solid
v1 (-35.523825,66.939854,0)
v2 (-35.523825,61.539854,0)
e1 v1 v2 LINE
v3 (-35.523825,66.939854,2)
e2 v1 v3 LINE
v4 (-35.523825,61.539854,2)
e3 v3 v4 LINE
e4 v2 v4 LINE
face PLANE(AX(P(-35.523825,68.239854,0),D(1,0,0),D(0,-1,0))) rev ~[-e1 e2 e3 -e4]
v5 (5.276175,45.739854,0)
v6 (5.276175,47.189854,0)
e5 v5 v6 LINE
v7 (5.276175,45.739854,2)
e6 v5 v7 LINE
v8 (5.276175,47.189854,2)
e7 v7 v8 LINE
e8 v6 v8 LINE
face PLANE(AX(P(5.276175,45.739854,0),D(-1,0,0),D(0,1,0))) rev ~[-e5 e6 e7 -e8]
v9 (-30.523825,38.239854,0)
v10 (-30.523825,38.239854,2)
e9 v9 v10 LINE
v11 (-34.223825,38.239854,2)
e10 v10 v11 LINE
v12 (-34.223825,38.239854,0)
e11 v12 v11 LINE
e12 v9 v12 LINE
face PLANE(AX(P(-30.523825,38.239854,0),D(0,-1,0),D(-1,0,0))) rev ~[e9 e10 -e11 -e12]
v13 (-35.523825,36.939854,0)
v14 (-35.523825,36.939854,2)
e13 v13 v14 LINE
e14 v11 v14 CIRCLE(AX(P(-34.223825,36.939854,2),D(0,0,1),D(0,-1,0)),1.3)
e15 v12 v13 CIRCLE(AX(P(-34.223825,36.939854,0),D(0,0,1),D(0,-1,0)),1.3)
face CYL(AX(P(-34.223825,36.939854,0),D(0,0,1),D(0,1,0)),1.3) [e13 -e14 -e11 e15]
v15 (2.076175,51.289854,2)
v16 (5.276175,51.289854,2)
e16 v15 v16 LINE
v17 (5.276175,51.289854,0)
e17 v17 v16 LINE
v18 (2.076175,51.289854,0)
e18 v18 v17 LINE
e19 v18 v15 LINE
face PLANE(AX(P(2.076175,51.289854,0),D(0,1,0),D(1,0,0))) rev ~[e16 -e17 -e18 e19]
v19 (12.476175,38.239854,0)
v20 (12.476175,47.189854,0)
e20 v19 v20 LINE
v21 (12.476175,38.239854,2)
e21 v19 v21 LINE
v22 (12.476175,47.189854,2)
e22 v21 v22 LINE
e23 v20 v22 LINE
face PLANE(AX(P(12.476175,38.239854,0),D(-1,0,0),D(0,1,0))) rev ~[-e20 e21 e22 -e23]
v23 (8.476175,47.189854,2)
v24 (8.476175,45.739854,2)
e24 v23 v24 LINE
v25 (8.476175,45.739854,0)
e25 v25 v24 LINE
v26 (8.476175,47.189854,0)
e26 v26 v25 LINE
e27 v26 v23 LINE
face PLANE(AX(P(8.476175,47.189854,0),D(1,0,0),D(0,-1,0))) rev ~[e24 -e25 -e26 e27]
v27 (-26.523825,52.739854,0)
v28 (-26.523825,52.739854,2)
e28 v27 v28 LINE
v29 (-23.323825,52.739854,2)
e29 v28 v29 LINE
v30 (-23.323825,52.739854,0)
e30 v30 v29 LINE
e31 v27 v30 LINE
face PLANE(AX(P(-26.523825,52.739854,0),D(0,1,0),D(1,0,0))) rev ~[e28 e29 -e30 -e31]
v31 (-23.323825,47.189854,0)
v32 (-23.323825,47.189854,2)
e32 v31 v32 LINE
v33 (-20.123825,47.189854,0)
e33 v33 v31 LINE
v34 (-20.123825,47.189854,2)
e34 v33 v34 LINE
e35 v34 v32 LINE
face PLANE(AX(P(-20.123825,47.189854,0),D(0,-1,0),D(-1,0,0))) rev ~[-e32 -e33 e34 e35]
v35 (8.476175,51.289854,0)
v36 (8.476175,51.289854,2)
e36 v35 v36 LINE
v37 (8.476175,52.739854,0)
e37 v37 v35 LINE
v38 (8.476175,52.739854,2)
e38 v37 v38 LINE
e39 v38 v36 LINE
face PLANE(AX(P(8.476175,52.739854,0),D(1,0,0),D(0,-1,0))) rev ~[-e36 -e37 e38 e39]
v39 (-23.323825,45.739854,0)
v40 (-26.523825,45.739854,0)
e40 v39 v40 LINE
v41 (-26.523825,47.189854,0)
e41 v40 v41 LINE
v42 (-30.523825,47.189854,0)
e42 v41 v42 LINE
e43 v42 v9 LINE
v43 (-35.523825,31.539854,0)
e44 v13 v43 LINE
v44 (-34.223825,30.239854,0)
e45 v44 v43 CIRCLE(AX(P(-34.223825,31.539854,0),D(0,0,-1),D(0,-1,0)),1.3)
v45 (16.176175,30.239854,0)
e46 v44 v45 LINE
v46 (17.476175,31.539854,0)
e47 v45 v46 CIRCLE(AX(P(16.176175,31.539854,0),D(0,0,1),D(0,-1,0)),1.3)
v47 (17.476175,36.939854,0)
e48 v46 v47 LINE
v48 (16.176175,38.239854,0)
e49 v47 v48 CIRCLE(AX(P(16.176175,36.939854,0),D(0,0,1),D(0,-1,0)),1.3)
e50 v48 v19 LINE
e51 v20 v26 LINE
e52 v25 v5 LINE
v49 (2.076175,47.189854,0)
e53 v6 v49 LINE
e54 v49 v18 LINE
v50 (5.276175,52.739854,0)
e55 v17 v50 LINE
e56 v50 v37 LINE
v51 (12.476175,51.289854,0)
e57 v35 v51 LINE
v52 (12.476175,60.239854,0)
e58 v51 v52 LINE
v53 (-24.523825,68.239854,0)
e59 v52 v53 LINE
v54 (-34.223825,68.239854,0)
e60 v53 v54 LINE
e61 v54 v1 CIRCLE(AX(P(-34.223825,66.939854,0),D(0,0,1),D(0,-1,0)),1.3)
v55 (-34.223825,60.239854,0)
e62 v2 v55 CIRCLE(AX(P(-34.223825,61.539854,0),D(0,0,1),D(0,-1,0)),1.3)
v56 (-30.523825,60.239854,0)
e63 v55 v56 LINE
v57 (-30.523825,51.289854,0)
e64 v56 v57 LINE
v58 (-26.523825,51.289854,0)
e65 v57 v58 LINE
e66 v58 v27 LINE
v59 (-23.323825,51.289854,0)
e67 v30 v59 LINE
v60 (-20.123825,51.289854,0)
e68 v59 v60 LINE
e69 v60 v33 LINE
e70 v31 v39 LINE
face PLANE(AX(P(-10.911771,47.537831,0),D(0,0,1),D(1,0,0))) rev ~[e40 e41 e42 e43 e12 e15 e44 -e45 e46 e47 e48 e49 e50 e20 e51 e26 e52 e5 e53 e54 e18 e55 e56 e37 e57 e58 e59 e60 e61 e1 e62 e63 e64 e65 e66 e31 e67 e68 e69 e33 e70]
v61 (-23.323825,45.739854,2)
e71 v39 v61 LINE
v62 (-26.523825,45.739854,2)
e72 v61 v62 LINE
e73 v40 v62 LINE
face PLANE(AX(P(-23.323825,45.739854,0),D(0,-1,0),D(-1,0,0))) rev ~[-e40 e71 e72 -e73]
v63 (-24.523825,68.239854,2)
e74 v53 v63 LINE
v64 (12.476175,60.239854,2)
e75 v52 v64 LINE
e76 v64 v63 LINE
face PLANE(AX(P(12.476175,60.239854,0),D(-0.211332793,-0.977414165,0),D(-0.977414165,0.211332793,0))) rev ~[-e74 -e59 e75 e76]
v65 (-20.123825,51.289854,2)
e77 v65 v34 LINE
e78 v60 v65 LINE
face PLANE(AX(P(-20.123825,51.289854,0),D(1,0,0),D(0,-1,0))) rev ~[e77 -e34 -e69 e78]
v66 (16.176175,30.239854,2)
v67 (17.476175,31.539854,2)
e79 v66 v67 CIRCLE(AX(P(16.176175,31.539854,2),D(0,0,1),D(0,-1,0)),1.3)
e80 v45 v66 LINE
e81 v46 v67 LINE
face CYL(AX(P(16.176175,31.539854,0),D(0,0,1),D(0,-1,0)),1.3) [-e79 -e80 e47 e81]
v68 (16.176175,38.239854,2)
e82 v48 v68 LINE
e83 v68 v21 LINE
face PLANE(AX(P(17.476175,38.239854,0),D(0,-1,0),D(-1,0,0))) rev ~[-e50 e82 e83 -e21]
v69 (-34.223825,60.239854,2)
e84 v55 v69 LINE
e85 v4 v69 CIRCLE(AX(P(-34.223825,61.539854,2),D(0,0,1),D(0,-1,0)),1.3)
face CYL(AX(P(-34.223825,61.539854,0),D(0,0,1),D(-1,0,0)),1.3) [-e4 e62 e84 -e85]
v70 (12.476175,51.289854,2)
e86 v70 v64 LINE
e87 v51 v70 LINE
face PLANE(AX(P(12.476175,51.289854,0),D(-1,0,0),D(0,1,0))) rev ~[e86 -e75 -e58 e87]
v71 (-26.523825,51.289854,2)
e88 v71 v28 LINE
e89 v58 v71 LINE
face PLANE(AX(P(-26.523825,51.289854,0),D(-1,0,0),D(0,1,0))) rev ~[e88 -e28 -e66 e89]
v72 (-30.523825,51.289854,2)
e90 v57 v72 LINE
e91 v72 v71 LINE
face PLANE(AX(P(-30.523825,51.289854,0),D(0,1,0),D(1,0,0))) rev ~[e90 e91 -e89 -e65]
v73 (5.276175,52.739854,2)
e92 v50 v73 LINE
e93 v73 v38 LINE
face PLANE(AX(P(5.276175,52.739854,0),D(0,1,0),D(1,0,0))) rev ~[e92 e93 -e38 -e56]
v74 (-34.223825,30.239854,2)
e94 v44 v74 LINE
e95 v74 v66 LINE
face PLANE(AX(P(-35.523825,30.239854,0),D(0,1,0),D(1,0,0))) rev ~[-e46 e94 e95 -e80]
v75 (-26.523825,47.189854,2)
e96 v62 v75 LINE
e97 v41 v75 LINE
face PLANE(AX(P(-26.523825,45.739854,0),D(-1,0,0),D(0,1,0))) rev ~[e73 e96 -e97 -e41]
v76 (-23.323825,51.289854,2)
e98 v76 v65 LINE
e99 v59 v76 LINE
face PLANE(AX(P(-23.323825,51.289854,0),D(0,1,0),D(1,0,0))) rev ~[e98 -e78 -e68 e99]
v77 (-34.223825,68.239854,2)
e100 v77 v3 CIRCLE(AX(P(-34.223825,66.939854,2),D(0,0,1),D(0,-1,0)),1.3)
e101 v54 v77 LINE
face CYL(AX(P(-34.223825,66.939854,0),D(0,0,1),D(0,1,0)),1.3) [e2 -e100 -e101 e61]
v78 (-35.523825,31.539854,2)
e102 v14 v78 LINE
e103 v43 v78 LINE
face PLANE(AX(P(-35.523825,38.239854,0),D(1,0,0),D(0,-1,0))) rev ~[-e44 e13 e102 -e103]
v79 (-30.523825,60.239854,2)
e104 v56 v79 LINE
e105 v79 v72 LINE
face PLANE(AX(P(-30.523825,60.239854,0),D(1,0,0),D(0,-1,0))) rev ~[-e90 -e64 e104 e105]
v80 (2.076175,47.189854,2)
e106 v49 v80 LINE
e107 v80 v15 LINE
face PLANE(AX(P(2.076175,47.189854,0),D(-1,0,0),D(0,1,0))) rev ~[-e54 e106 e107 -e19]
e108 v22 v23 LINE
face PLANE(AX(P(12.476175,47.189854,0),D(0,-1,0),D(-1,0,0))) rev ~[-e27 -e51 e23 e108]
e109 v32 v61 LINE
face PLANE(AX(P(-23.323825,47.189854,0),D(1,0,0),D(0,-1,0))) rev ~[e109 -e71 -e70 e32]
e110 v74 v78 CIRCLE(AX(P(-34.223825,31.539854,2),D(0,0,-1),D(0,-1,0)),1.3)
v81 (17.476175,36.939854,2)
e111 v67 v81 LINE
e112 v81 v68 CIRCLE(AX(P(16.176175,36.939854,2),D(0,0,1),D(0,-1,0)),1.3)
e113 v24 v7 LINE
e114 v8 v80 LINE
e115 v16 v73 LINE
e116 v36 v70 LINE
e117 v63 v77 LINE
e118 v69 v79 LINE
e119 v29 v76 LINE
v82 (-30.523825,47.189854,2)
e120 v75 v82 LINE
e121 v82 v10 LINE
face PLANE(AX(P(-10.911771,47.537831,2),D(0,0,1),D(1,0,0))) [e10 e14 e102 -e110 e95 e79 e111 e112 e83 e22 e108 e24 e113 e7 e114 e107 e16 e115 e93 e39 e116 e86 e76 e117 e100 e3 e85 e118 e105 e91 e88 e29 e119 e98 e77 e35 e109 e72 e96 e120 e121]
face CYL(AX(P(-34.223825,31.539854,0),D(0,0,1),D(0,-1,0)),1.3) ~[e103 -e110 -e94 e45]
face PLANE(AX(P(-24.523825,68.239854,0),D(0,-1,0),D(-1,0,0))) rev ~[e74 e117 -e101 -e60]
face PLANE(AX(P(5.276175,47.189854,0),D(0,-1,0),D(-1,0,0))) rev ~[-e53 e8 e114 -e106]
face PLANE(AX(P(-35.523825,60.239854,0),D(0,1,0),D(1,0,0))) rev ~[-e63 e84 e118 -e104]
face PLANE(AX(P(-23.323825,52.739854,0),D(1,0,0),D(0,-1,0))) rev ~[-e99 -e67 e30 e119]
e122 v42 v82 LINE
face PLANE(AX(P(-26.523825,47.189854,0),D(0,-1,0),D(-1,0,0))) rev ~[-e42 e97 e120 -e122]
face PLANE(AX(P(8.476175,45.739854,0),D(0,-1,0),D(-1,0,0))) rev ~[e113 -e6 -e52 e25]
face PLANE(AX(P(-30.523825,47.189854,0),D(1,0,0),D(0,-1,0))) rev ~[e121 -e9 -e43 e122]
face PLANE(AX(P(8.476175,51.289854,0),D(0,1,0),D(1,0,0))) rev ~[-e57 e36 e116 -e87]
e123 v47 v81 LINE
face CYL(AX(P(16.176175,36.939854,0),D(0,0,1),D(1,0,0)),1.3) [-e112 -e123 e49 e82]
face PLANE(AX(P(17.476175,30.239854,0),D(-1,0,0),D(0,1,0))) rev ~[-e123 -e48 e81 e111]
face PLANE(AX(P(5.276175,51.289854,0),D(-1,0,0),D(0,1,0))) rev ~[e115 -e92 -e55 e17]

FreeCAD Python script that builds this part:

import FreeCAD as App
import Part
import Sketcher

V = App.Vector
Q = App.Units.Quantity


def edges_at(feature, points):
    """Names of the edges that pass closest to the given points."""
    edges = feature.Shape.Edges
    near = lambda p: min(range(len(edges)), key=lambda i: edges[i].distToShape(Part.Vertex(*p))[0])
    return sorted({f"Edge{near(p) + 1}" for p in points})


def add_polygon(sketch, points):
    """Adds a closed chain of lines whose ends are joined by coincident constraints."""
    first, n = sketch.GeometryCount, len(points)
    for a, b in zip(points, points[1:] + points[:1]):
        sketch.addGeometry(Part.LineSegment(App.Vector(*a, 0), App.Vector(*b, 0)), False)
    for i in range(n):
        sketch.addConstraint(Sketcher.Constraint("Coincident", first + i, 2, first + (i + 1) % n, 1))

doc = App.newDocument("Part")
body = doc.addObject("PartDesign::Body", "Body")

sketch1 = body.newObject("Sketcher::SketchObject", "Sketch")
sketch1.AttachmentSupport = (doc.getObject("XY_Plane"), [""])
sketch1.MapMode = "FlatFace"
add_polygon(sketch1, [(-35.5, 30.2), (17.5, 30.2), (17.5, 38.2), (12.5, 38.2), (12.5, 47.2), (8.5, 47.2), (8.5, 45.7), (5.3, 45.7), (5.3, 47.2), (2.1, 47.2), (2.1, 51.3), (5.3, 51.3), (5.3, 52.7), (8.5, 52.7), (8.5, 51.3), (12.5, 51.3), (12.5, 60.2), (-24.5, 68.2), (-35.5, 68.2), (-35.5, 60.2), (-30.5, 60.2), (-30.5, 51.3), (-26.5, 51.3), (-26.5, 52.7), (-23.3, 52.7), (-23.3, 51.3), (-20.1, 51.3), (-20.1, 47.2), (-23.3, 47.2), (-23.3, 45.7), (-26.5, 45.7), (-26.5, 47.2), (-30.5, 47.2), (-30.5, 38.2), (-35.5, 38.2)])
sketch1.addConstraint(Sketcher.Constraint("Horizontal", 0))
sketch1.addConstraint(Sketcher.Constraint("Vertical", 1))
sketch1.addConstraint(Sketcher.Constraint("Horizontal", 2))
sketch1.addConstraint(Sketcher.Constraint("Vertical", 3))
sketch1.addConstraint(Sketcher.Constraint("Horizontal", 4))
sketch1.addConstraint(Sketcher.Constraint("Vertical", 5))
sketch1.addConstraint(Sketcher.Constraint("Horizontal", 6))
sketch1.addConstraint(Sketcher.Constraint("Vertical", 7))
sketch1.addConstraint(Sketcher.Constraint("Horizontal", 8))
sketch1.addConstraint(Sketcher.Constraint("Vertical", 9))
sketch1.addConstraint(Sketcher.Constraint("Horizontal", 10))
sketch1.addConstraint(Sketcher.Constraint("Vertical", 11))
sketch1.addConstraint(Sketcher.Constraint("Horizontal", 12))
sketch1.addConstraint(Sketcher.Constraint("Vertical", 13))
sketch1.addConstraint(Sketcher.Constraint("Horizontal", 14))
sketch1.addConstraint(Sketcher.Constraint("Vertical", 15))
sketch1.addConstraint(Sketcher.Constraint("Horizontal", 17))
sketch1.addConstraint(Sketcher.Constraint("Vertical", 18))
sketch1.addConstraint(Sketcher.Constraint("Horizontal", 19))
sketch1.addConstraint(Sketcher.Constraint("Vertical", 20))
sketch1.addConstraint(Sketcher.Constraint("Horizontal", 21))
sketch1.addConstraint(Sketcher.Constraint("Vertical", 22))
sketch1.addConstraint(Sketcher.Constraint("Horizontal", 23))
sketch1.addConstraint(Sketcher.Constraint("Vertical", 24))
sketch1.addConstraint(Sketcher.Constraint("Horizontal", 25))
sketch1.addConstraint(Sketcher.Constraint("Vertical", 26))
sketch1.addConstraint(Sketcher.Constraint("Horizontal", 27))
sketch1.addConstraint(Sketcher.Constraint("Vertical", 28))
sketch1.addConstraint(Sketcher.Constraint("Horizontal", 29))
sketch1.addConstraint(Sketcher.Constraint("Vertical", 30))
sketch1.addConstraint(Sketcher.Constraint("Horizontal", 31))
sketch1.addConstraint(Sketcher.Constraint("Vertical", 32))
sketch1.addConstraint(Sketcher.Constraint("Horizontal", 33))
sketch1.addConstraint(Sketcher.Constraint("Vertical", 34))
sketch1.addConstraint(Sketcher.Constraint("Horizontal", 4, 2, 7, 2))
sketch1.addConstraint(Sketcher.Constraint("Horizontal", 10, 2, 13, 2))
sketch1.addConstraint(Sketcher.Constraint("Horizontal", 15, 2, 18, 2))
sketch1.addConstraint(Sketcher.Constraint("Horizontal", 14, 2, 20, 2))
sketch1.addConstraint(Sketcher.Constraint("Horizontal", 12, 2, 22, 2))
sketch1.addConstraint(Sketcher.Constraint("Horizontal", 21, 2, 24, 2))
sketch1.addConstraint(Sketcher.Constraint("Horizontal", 8, 2, 26, 2))
sketch1.addConstraint(Sketcher.Constraint("Horizontal", 6, 2, 28, 2))
sketch1.addConstraint(Sketcher.Constraint("Horizontal", 27, 2, 30, 2))
sketch1.addConstraint(Sketcher.Constraint("Horizontal", 2, 2, 32, 2))
sketch1.addConstraint(Sketcher.Constraint("Vertical", 7, 2, 10, 2))
sketch1.addConstraint(Sketcher.Constraint("Vertical", 5, 2, 12, 2))
sketch1.addConstraint(Sketcher.Constraint("Vertical", 3, 2, 14, 2))
sketch1.addConstraint(Sketcher.Constraint("Vertical", 24, 2, 27, 2))
sketch1.addConstraint(Sketcher.Constraint("Vertical", 22, 2, 29, 2))
sketch1.addConstraint(Sketcher.Constraint("Vertical", 20, 2, 31, 2))
sketch1.addConstraint(Sketcher.Constraint("Vertical", 18, 2, 33, 2))
sketch1.addConstraint(Sketcher.Constraint("Equal", 6, 8))
sketch1.addConstraint(Sketcher.Constraint("Equal", 2, 19))
sketch1.addConstraint(Sketcher.Constraint("Equal", 14, 21))
sketch1.addConstraint(Sketcher.Constraint("Equal", 12, 23))
sketch1.addConstraint(Sketcher.Constraint("Equal", 23, 25))
sketch1.addConstraint(Sketcher.Constraint("Equal", 7, 11))
sketch1.addConstraint(Sketcher.Constraint("Equal", 3, 15))
sketch1.addConstraint(Sketcher.Constraint("Equal", 1, 18))
sketch1.addConstraint(Sketcher.Constraint("DistanceX", 0, 1, 0, 2, Q("53 mm")))
sketch1.addConstraint(Sketcher.Constraint("DistanceX", 2, 2, 2, 1, Q("5 mm")))
sketch1.addConstraint(Sketcher.Constraint("DistanceX", 4, 2, 4, 1, Q("4 mm")))
sketch1.addConstraint(Sketcher.Constraint("DistanceX", 17, 2, 17, 1, Q("11 mm")))
sketch1.addConstraint(Sketcher.Constraint("DistanceY", 1, 1, 1, 2, Q("8 mm")))
sketch1.addConstraint(Sketcher.Constraint("DistanceX", 6, 2, 6, 1, Q("3.2 mm")))
sketch1.addConstraint(Sketcher.Constraint("DistanceY", 9, 1, 9, 2, Q("4.1 mm")))
sketch1.addConstraint(Sketcher.Constraint("DistanceY", 3, 1, 3, 2, Q("8.95 mm")))
sketch1.addConstraint(Sketcher.Constraint("DistanceY", 5, 2, 5, 1, Q("1.45 mm")))
sketch1.addConstraint(Sketcher.Constraint("DistanceX", -1, 1, 0, 2, Q("17.476175 mm")))
sketch1.addConstraint(Sketcher.Constraint("DistanceY", -1, 1, 0, 2, Q("30.239854 mm")))
pad1 = body.newObject("PartDesign::Pad", "Pad")
pad1.Profile = sketch1
pad1.Length = 2
doc.recompute()

fillet = body.newObject("PartDesign::Fillet", "Fillet")
fillet.Base = (pad1, edges_at(pad1, [
    (-35.524, 60.24, 1),
    (-35.524, 68.24, 1),
    (17.476, 38.24, 1),
    (17.476, 30.24, 1),
    (-35.524, 30.24, 1),
    (-35.524, 38.24, 1),
]))
fillet.Radius = 1.3

doc.recompute()
